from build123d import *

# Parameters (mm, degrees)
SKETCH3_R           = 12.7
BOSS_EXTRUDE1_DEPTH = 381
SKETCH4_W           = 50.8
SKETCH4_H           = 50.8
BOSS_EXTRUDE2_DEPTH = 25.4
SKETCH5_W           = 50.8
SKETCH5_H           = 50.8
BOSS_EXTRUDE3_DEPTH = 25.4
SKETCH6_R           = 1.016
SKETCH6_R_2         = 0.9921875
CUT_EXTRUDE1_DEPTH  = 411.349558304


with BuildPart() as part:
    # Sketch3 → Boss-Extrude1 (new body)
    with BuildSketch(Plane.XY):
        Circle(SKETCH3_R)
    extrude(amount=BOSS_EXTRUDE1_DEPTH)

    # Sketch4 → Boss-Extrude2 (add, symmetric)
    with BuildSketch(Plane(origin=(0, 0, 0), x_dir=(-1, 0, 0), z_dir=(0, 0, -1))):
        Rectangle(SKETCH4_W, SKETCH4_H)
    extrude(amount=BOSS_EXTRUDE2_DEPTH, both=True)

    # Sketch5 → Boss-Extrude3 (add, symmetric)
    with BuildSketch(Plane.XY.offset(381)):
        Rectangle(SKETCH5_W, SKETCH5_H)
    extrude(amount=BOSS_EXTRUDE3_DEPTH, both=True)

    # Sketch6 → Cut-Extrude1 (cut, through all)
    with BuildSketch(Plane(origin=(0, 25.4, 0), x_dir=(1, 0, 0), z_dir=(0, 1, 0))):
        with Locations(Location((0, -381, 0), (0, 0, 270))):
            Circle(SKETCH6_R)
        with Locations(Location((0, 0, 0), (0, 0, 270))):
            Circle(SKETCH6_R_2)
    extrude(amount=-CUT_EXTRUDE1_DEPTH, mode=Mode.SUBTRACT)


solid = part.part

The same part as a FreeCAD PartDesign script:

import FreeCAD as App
import Part
import Sketcher

V = App.Vector
Q = App.Units.Quantity


def add_polygon(sketch, points):
    """Adds a closed chain of lines whose ends are joined by coincident constraints."""
    first, n = sketch.GeometryCount, len(points)
    for a, b in zip(points, points[1:] + points[:1]):
        sketch.addGeometry(Part.LineSegment(App.Vector(*a, 0), App.Vector(*b, 0)), False)
    for i in range(n):
        sketch.addConstraint(Sketcher.Constraint("Coincident", first + i, 2, first + (i + 1) % n, 1))

doc = App.newDocument("Part")
body = doc.addObject("PartDesign::Body", "Body")

# Sketch on XY plane
sketch1 = doc.addObject("Sketcher::SketchObject", "Sketch")
body.addObject(sketch1)
sketch1.AttachmentSupport = (doc.XY_Plane, [""])
sketch1.MapMode = "FlatFace"
sketch1.addGeometry(Part.Circle(V(0, 0, 0), V(0, 0, 1), 12.7), False)
sketch1.addConstraint([
    Sketcher.Constraint("Coincident", 0, 3, -1, 1),
    Sketcher.Constraint("Diameter", 0, Q("1 in")),
])
pad1 = doc.addObject("PartDesign::Pad", "Pad")
body.addObject(pad1)
pad1.Profile = sketch1
pad1.Length = Q("15 in")

# Sketch on XY plane
sketch2 = doc.addObject("Sketcher::SketchObject", "Sketch001")
body.addObject(sketch2)
sketch2.AttachmentSupport = (doc.XY_Plane, [""])
sketch2.MapMode = "FlatFace"
add_polygon(sketch2, [(25.4, 25.4), (25.4, -25.4), (-25.4, -25.4), (-25.4, 25.4)])  # lines 0-3
sketch2.addConstraint([
    Sketcher.Constraint("Vertical", 0),
    Sketcher.Constraint("Horizontal", 1),
    Sketcher.Constraint("Vertical", 2),
    Sketcher.Constraint("Horizontal", 3),
    Sketcher.Constraint("Symmetric", 0, 2, 2, 2, -1, 1),
    Sketcher.Constraint("Equal", 3, 0),
    Sketcher.Constraint("DistanceX", 1, 2, 1, 1, Q("2 in")),
])
pad2 = doc.addObject("PartDesign::Pad", "Pad001")
body.addObject(pad2)
pad2.Profile = sketch2
pad2.Length = Q("2 in")
pad2.Midplane = True

# Sketch on XY plane
sketch3 = doc.addObject("Sketcher::SketchObject", "Sketch002")
body.addObject(sketch3)
sketch3.AttachmentSupport = (doc.XY_Plane, [""])
sketch3.MapMode = "FlatFace"
sketch3.AttachmentOffset = App.Placement(V(0, 0, 15 * 25.4), App.Rotation())
add_polygon(sketch3, [(-25.4, 25.4), (-25.4, -25.4), (25.4, -25.4), (25.4, 25.4)])  # lines 0-3
sketch3.addConstraint([
    Sketcher.Constraint("Vertical", 0),
    Sketcher.Constraint("Horizontal", 1),
    Sketcher.Constraint("Vertical", 2),
    Sketcher.Constraint("Horizontal", 3),
    Sketcher.Constraint("Symmetric", 0, 2, 2, 2, -1, 1),
    Sketcher.Constraint("Equal", 3, 0),
    Sketcher.Constraint("DistanceX", 1, 1, 1, 2, Q("2 in")),
])
pad3 = doc.addObject("PartDesign::Pad", "Pad002")
body.addObject(pad3)
pad3.Profile = sketch3
pad3.Length = Q("2 in")
pad3.Midplane = True

# Sketch on XZ plane
sketch4 = doc.addObject("Sketcher::SketchObject", "Sketch003")
body.addObject(sketch4)
sketch4.AttachmentSupport = (doc.XZ_Plane, [""])
sketch4.MapMode = "FlatFace"
sketch4.AttachmentOffset = App.Placement(V(0, 0, -1 * 25.4), App.Rotation())
sketch4.addGeometry([
    Part.Circle(V(0, 381, 0), V(0, 0, 1), 1.016),
    Part.Circle(V(0, 0, 0), V(0, 0, 1), 0.992188),
], False)
sketch4.addConstraint([
    Sketcher.Constraint("Coincident", 1, 3, -1, 1),
    Sketcher.Constraint("PointOnObject", 0, 3, -2),
    Sketcher.Constraint("Diameter", 0, Q("0.08 in")),
    Sketcher.Constraint("Diameter", 1, Q("0.078125 in")),
    Sketcher.Constraint("DistanceY", -1, 1, 0, 3, Q("15 in")),
])
pocket1 = doc.addObject("PartDesign::Pocket", "Pocket")
body.addObject(pocket1)
pocket1.Profile = sketch4
pocket1.Type = "ThroughAll"
pocket1.Reversed = True

doc.recompute()
